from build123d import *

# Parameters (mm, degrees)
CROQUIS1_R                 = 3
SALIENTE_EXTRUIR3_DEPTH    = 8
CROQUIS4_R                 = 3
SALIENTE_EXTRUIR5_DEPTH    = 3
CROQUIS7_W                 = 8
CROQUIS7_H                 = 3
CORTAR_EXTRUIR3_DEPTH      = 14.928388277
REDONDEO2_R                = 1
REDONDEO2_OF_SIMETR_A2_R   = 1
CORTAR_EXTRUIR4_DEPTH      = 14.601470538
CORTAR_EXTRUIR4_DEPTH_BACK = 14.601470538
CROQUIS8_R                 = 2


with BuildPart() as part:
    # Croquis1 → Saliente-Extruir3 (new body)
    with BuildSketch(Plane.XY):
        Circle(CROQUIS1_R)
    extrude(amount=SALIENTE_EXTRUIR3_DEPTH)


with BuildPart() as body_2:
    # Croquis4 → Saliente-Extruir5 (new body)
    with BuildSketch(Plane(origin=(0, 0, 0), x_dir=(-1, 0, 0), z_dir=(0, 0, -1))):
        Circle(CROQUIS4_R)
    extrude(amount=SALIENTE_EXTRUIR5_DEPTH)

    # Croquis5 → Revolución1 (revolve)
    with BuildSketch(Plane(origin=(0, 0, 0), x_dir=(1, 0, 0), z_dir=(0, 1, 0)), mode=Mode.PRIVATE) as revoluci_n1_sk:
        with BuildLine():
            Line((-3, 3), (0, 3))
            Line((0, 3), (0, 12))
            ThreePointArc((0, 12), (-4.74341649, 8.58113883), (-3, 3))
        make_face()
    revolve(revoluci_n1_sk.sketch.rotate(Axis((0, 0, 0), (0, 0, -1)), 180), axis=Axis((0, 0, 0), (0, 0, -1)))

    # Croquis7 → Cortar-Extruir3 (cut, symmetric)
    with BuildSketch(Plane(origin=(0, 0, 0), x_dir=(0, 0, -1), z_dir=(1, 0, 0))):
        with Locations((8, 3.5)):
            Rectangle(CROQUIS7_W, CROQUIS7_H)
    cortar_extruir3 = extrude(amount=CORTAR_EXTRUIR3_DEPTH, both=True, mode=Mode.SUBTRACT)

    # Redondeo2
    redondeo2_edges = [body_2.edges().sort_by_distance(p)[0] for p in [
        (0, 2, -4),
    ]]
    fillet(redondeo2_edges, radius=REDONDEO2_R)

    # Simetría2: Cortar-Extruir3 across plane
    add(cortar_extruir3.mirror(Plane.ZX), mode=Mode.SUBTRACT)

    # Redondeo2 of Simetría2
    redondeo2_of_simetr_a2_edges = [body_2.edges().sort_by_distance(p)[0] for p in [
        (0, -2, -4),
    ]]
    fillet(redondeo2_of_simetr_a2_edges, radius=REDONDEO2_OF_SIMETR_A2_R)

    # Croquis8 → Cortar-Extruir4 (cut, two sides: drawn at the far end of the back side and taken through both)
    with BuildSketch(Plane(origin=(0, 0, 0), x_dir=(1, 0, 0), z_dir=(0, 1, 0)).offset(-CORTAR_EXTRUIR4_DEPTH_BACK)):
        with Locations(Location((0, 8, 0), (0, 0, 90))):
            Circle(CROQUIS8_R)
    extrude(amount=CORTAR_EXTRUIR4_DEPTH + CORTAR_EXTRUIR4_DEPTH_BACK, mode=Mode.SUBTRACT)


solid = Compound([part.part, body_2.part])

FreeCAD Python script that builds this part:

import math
import FreeCAD as App
import Part
import Sketcher
from FreeCAD import Vector


def edges_at(feature, points):
    """Names of the edges that pass closest to the given points."""
    edges = feature.Shape.Edges
    near = lambda p: min(range(len(edges)), key=lambda i: edges[i].distToShape(Part.Vertex(*p))[0])
    return sorted({f"Edge{near(p) + 1}" for p in points})

doc = App.newDocument("Part")
body = doc.addObject("PartDesign::Body", "Body")

sketch1 = doc.addObject("Sketcher::SketchObject", "Sketch")
body.addObject(sketch1)
sketch1.AttachmentSupport = (doc.XY_Plane, [""])
sketch1.MapMode = "FlatFace"
sketch1.addGeometry(Part.Circle(Vector(0, 0, 0), Vector(0, 0, 1), 3), False)
sketch1.addConstraint([
    Sketcher.Constraint("Coincident", 0, 3, -1, 1),
    Sketcher.Constraint("Diameter", 0, 6.0),
])
pad1 = doc.addObject("PartDesign::Pad", "Pad")
body.addObject(pad1)
pad1.Profile = sketch1
pad1.Length = 8
body2 = doc.addObject("PartDesign::Body", "Body001")

sketch2 = doc.addObject("Sketcher::SketchObject", "Sketch001")
body2.addObject(sketch2)
sketch2.AttachmentSupport = (doc.getObject("XY_Plane001"), [""])
sketch2.MapMode = "FlatFace"
sketch2.addGeometry(Part.Circle(Vector(0, 0, 0), Vector(0, 0, 1), 3), False)
sketch2.addConstraint([
    Sketcher.Constraint("Coincident", 0, 3, -1, 1),
    Sketcher.Constraint("Diameter", 0, 6.0),
])
pad2 = doc.addObject("PartDesign::Pad", "Pad001")
body2.addObject(pad2)
pad2.Profile = sketch2
pad2.Length = 3
pad2.Reversed = True

sketch3 = doc.addObject("Sketcher::SketchObject", "Sketch002")
body2.addObject(sketch3)
sketch3.AttachmentSupport = (doc.getObject("XZ_Plane001"), [""])
sketch3.MapMode = "FlatFace"
sketch3.addGeometry([
    Part.LineSegment(Vector(-3, -3, 0), Vector(0, -3, 0)),
    Part.LineSegment(Vector(0, -3, 0), Vector(0, -12, 0)),
    Part.ArcOfCircle(Part.Circle(Vector(0, -7, 0), Vector(0, 0, 1), 5), math.radians(126.869898), math.radians(270)),
], False)
sketch3.addConstraint([
    Sketcher.Constraint("Coincident", 0, 2, 1, 1),
    Sketcher.Constraint("Coincident", 1, 2, 2, 2),
    Sketcher.Constraint("Coincident", 2, 1, 0, 1),
    Sketcher.Constraint("Horizontal", 0),
    Sketcher.Constraint("Vertical", 1),
    Sketcher.Constraint("PointOnObject", 2, 3, -2),
    Sketcher.Constraint("PointOnObject", 0, 2, -2),
    Sketcher.Constraint("Radius", 2, 5.0),
    Sketcher.Constraint("DistanceX", 0, 1, 0, 2, 3.0),
    Sketcher.Constraint("DistanceY", 2, 3, -1, 1, 7.0),
])
revolution = doc.addObject("PartDesign::Revolution", "Revolution")
body2.addObject(revolution)
revolution.Profile = sketch3
revolution.ReferenceAxis = (sketch3, ["V_Axis"])
revolution.Angle = 360

sketch4 = doc.addObject("Sketcher::SketchObject", "Sketch003")
body2.addObject(sketch4)
sketch4.AttachmentSupport = (doc.getObject("YZ_Plane001"), [""])
sketch4.MapMode = "FlatFace"
sketch4.addGeometry([
    Part.LineSegment(Vector(5, -4, 0), Vector(2, -4, 0)),
    Part.LineSegment(Vector(2, -4, 0), Vector(2, -12, 0)),
    Part.LineSegment(Vector(2, -12, 0), Vector(5, -12, 0)),
    Part.LineSegment(Vector(5, -12, 0), Vector(5, -4, 0)),
], False)
sketch4.addConstraint([
    Sketcher.Constraint("Coincident", 0, 2, 1, 1),
    Sketcher.Constraint("Coincident", 1, 2, 2, 1),
    Sketcher.Constraint("Coincident", 2, 2, 3, 1),
    Sketcher.Constraint("Coincident", 3, 2, 0, 1),
    Sketcher.Constraint("Horizontal", 0),
    Sketcher.Constraint("Vertical", 1),
    Sketcher.Constraint("Horizontal", 2),
    Sketcher.Constraint("Vertical", 3),
    Sketcher.Constraint("DistanceX", 0, 2, 0, 1, 3.0),
    Sketcher.Constraint("DistanceY", 1, 2, 1, 1, 8.0),
    Sketcher.Constraint("DistanceX", -1, 1, 0, 2, 2.0),
    Sketcher.Constraint("DistanceY", 0, 2, -1, 1, 4.0),
])
pocket1 = doc.addObject("PartDesign::Pocket", "Pocket")
body2.addObject(pocket1)
pocket1.Profile = sketch4
pocket1.Length = 29.856777
pocket1.Midplane = True
doc.recompute()

fillet = doc.addObject("PartDesign::Fillet", "Fillet")
body2.addObject(fillet)
fillet.Base = (pocket1, edges_at(pocket1, [(0, 2, -4)]))
fillet.Radius = 1
doc.recompute()

mirrored = doc.addObject("PartDesign::Mirrored", "Mirrored")
body2.addObject(mirrored)
mirrored.Originals = [pocket1]
mirrored.MirrorPlane = (doc.getObject("XZ_Plane001"), [""])
body2.Tip = mirrored
doc.recompute()

fillet2 = doc.addObject("PartDesign::Fillet", "Fillet001")
body2.addObject(fillet2)
fillet2.Base = (mirrored, edges_at(mirrored, [(0, -2, -4)]))
fillet2.Radius = 1

sketch5 = doc.addObject("Sketcher::SketchObject", "Sketch004")
body2.addObject(sketch5)
sketch5.AttachmentSupport = (doc.getObject("XZ_Plane001"), [""])
sketch5.MapMode = "FlatFace"
sketch5.addGeometry(Part.Circle(Vector(0, -8, 0), Vector(0, 0, 1), 2), False)
sketch5.addConstraint([
    Sketcher.Constraint("PointOnObject", 0, 3, -2),
    Sketcher.Constraint("Diameter", 0, 4.0),
    Sketcher.Constraint("DistanceY", 0, 3, -1, 1, 8.0),
])
pocket2 = doc.addObject("PartDesign::Pocket", "Pocket001")
body2.addObject(pocket2)
pocket2.Profile = sketch5
pocket2.Type = "ThroughAll"
pocket2.Midplane = True

doc.recompute()
